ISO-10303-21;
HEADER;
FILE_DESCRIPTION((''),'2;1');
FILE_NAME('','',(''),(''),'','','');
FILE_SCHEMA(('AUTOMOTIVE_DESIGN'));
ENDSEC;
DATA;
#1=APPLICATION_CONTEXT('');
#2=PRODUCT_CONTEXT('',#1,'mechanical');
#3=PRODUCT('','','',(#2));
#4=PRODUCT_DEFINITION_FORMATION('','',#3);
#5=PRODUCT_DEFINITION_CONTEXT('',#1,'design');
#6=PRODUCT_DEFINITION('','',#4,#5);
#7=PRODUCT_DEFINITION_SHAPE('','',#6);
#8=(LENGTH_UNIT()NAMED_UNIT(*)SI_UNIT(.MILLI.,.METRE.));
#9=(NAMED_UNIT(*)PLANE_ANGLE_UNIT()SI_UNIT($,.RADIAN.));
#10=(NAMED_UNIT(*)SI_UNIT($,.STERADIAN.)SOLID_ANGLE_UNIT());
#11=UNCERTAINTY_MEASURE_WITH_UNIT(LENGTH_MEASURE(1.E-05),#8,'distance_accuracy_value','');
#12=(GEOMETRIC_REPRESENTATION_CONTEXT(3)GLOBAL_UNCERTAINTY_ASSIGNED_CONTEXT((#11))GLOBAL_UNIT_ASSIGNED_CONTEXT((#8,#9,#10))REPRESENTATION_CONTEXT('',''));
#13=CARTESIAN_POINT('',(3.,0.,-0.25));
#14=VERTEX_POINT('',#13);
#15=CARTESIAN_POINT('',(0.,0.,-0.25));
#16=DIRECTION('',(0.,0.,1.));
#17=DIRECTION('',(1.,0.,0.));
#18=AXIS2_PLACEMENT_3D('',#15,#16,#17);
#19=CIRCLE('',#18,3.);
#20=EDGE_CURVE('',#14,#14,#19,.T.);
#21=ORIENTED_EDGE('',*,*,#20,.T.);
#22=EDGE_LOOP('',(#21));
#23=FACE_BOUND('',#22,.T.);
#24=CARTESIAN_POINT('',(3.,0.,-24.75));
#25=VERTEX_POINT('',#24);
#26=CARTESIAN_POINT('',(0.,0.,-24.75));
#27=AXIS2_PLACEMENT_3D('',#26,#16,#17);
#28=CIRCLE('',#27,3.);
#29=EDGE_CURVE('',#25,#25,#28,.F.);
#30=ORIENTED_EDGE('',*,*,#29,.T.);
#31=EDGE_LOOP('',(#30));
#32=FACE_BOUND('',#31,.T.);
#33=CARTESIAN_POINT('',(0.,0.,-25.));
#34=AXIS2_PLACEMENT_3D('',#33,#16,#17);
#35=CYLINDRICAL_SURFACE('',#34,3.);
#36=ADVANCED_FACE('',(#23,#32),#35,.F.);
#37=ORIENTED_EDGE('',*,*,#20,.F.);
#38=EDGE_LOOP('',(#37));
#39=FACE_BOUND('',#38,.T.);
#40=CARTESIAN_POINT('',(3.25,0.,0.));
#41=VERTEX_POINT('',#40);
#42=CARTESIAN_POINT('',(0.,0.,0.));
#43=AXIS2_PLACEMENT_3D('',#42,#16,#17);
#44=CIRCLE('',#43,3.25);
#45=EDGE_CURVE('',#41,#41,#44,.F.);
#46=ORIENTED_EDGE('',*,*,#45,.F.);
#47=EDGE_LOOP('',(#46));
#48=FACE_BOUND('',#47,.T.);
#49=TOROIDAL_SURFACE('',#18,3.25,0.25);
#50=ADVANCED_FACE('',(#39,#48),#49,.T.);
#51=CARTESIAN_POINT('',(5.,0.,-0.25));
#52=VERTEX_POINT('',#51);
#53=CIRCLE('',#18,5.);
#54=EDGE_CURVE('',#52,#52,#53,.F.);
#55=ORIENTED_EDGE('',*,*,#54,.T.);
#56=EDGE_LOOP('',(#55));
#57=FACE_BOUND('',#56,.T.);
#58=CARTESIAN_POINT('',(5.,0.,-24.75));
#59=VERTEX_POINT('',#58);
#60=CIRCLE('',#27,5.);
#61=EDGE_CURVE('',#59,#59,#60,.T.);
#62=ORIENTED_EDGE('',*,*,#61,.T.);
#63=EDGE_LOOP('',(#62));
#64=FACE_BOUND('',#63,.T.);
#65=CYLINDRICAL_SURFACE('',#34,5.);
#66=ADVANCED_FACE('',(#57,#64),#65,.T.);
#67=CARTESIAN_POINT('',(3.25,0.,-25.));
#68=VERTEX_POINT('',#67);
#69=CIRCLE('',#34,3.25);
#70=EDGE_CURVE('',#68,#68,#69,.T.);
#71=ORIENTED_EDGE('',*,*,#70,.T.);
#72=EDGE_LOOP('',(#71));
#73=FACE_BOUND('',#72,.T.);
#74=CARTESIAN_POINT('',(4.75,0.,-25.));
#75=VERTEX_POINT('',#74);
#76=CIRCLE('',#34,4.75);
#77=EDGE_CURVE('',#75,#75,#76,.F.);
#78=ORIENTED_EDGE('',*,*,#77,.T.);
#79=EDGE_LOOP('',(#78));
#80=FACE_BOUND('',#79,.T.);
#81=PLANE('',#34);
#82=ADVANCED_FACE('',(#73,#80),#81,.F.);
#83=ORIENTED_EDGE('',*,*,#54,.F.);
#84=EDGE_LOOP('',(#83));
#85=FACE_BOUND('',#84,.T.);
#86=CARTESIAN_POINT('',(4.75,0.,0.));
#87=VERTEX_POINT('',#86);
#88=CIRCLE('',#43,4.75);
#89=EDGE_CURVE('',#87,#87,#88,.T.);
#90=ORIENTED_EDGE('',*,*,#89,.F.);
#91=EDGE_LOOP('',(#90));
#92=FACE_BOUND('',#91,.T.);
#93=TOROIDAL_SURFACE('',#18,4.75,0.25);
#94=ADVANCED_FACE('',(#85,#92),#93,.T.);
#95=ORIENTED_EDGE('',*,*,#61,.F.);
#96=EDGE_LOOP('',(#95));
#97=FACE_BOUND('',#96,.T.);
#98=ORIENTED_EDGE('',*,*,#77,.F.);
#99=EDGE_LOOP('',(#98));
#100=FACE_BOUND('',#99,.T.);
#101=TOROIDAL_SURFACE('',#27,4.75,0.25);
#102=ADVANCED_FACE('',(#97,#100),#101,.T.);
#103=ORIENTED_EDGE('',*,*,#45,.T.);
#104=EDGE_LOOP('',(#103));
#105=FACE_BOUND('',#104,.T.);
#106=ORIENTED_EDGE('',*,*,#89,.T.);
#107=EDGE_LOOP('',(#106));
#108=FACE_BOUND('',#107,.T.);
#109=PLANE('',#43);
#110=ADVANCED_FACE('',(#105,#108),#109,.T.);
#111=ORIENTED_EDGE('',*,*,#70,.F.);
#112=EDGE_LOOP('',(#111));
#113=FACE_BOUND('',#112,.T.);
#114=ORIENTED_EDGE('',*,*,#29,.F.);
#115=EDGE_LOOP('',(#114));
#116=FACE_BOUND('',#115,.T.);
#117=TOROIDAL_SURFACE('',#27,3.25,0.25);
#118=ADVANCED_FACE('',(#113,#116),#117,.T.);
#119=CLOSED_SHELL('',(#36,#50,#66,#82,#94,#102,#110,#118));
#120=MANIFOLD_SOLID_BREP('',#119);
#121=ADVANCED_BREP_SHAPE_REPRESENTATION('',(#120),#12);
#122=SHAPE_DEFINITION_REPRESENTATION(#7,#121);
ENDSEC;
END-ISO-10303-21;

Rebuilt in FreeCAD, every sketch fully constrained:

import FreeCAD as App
import Part
import Sketcher
from FreeCAD import Vector


def edges_at(feature, points):
    """Names of the edges that pass closest to the given points."""
    edges = feature.Shape.Edges
    near = lambda p: min(range(len(edges)), key=lambda i: edges[i].distToShape(Part.Vertex(*p))[0])
    return sorted({f"Edge{near(p) + 1}" for p in points})

doc = App.newDocument("Part")
body = doc.addObject("PartDesign::Body", "Body")

# Sketch on XY plane
sketch1 = doc.addObject("Sketcher::SketchObject", "Sketch")
body.addObject(sketch1)
sketch1.AttachmentSupport = (doc.XY_Plane, [""])
sketch1.MapMode = "FlatFace"
sketch1.addGeometry([
    Part.Circle(Vector(0, 0, 0), Vector(0, 0, 1), 5),
    Part.Circle(Vector(0, 0, 0), Vector(0, 0, 1), 3),
], False)
sketch1.addConstraint([
    Sketcher.Constraint("Coincident", 0, 3, -1, 1),
    Sketcher.Constraint("Coincident", 1, 3, -1, 1),
    Sketcher.Constraint("Diameter", 0, 10.0),
    Sketcher.Constraint("Diameter", 1, 6.0),
])
pad1 = doc.addObject("PartDesign::Pad", "Pad")
body.addObject(pad1)
pad1.Profile = sketch1
pad1.Length = 25
pad1.Reversed = True
doc.recompute()

fillet = doc.addObject("PartDesign::Fillet", "Fillet")
body.addObject(fillet)
fillet.Base = (pad1, edges_at(pad1, [
    (-5, 0, 0),
    (-5, 0, -25),
    (-3, 0, -25),
    (-3, 0, 0),
]))
fillet.Radius = 0.25

doc.recompute()
